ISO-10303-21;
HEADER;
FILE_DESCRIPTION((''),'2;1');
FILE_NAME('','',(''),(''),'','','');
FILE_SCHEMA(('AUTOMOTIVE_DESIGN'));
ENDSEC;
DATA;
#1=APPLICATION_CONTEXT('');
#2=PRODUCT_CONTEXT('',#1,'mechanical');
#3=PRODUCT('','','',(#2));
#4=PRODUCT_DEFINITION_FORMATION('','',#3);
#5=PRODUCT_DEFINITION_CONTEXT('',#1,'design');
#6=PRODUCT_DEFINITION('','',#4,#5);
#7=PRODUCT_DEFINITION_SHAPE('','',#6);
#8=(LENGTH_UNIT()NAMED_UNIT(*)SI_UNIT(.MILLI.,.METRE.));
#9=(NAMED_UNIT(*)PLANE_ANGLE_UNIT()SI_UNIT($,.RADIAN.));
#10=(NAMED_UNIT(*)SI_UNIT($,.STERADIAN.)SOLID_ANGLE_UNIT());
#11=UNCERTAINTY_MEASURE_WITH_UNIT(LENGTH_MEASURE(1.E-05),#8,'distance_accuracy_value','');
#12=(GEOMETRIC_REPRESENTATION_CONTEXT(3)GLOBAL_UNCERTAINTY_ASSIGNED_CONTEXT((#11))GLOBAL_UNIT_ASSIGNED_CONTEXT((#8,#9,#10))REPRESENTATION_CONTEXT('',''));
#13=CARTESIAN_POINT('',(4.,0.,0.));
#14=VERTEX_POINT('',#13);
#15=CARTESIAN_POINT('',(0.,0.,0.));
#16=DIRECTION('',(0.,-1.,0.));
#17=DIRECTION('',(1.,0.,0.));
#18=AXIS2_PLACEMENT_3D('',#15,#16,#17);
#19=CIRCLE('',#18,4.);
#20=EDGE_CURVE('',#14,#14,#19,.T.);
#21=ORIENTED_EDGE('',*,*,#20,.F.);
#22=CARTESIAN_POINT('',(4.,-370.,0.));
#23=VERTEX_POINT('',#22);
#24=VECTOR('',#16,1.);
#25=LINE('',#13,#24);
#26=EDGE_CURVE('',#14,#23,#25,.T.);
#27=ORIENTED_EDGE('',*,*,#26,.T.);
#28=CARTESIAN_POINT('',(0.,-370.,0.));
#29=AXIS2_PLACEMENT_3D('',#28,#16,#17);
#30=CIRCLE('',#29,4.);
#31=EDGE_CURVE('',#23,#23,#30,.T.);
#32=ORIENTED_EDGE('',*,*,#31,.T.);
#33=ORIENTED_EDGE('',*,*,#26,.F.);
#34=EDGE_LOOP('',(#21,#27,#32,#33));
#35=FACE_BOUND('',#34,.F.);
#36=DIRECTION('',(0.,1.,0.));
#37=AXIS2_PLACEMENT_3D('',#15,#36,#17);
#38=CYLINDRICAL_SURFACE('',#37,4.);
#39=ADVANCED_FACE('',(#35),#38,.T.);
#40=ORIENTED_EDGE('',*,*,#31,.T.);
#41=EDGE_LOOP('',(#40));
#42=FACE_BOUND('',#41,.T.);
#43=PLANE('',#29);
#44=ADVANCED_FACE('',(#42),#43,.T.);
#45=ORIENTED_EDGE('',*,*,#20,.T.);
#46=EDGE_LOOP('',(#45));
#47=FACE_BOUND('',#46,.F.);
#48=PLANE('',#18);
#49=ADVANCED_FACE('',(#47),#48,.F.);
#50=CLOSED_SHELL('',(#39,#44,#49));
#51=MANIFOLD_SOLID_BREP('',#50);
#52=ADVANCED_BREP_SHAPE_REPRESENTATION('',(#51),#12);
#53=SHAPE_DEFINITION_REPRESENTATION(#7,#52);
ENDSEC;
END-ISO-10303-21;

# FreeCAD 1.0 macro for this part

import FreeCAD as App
import Part
import Sketcher

doc = App.newDocument("Part")
body = doc.addObject("PartDesign::Body", "Body")

# Sketch on XZ plane
sketch1 = body.newObject("Sketcher::SketchObject", "Sketch")
sketch1.AttachmentSupport = (doc.getObject("XZ_Plane"), [""])
sketch1.MapMode = "FlatFace"
sketch1.addGeometry(Part.Circle(App.Vector(0, 0, 0), App.Vector(0, 0, 1), 4), False)
sketch1.addConstraint([
    Sketcher.Constraint("Coincident", 0, 3, -1, 1),
    Sketcher.Constraint("Diameter", 0, 8.0),
])
pad1 = body.newObject("PartDesign::Pad", "Pad")
pad1.Profile = sketch1
pad1.Length = 370

doc.recompute()
